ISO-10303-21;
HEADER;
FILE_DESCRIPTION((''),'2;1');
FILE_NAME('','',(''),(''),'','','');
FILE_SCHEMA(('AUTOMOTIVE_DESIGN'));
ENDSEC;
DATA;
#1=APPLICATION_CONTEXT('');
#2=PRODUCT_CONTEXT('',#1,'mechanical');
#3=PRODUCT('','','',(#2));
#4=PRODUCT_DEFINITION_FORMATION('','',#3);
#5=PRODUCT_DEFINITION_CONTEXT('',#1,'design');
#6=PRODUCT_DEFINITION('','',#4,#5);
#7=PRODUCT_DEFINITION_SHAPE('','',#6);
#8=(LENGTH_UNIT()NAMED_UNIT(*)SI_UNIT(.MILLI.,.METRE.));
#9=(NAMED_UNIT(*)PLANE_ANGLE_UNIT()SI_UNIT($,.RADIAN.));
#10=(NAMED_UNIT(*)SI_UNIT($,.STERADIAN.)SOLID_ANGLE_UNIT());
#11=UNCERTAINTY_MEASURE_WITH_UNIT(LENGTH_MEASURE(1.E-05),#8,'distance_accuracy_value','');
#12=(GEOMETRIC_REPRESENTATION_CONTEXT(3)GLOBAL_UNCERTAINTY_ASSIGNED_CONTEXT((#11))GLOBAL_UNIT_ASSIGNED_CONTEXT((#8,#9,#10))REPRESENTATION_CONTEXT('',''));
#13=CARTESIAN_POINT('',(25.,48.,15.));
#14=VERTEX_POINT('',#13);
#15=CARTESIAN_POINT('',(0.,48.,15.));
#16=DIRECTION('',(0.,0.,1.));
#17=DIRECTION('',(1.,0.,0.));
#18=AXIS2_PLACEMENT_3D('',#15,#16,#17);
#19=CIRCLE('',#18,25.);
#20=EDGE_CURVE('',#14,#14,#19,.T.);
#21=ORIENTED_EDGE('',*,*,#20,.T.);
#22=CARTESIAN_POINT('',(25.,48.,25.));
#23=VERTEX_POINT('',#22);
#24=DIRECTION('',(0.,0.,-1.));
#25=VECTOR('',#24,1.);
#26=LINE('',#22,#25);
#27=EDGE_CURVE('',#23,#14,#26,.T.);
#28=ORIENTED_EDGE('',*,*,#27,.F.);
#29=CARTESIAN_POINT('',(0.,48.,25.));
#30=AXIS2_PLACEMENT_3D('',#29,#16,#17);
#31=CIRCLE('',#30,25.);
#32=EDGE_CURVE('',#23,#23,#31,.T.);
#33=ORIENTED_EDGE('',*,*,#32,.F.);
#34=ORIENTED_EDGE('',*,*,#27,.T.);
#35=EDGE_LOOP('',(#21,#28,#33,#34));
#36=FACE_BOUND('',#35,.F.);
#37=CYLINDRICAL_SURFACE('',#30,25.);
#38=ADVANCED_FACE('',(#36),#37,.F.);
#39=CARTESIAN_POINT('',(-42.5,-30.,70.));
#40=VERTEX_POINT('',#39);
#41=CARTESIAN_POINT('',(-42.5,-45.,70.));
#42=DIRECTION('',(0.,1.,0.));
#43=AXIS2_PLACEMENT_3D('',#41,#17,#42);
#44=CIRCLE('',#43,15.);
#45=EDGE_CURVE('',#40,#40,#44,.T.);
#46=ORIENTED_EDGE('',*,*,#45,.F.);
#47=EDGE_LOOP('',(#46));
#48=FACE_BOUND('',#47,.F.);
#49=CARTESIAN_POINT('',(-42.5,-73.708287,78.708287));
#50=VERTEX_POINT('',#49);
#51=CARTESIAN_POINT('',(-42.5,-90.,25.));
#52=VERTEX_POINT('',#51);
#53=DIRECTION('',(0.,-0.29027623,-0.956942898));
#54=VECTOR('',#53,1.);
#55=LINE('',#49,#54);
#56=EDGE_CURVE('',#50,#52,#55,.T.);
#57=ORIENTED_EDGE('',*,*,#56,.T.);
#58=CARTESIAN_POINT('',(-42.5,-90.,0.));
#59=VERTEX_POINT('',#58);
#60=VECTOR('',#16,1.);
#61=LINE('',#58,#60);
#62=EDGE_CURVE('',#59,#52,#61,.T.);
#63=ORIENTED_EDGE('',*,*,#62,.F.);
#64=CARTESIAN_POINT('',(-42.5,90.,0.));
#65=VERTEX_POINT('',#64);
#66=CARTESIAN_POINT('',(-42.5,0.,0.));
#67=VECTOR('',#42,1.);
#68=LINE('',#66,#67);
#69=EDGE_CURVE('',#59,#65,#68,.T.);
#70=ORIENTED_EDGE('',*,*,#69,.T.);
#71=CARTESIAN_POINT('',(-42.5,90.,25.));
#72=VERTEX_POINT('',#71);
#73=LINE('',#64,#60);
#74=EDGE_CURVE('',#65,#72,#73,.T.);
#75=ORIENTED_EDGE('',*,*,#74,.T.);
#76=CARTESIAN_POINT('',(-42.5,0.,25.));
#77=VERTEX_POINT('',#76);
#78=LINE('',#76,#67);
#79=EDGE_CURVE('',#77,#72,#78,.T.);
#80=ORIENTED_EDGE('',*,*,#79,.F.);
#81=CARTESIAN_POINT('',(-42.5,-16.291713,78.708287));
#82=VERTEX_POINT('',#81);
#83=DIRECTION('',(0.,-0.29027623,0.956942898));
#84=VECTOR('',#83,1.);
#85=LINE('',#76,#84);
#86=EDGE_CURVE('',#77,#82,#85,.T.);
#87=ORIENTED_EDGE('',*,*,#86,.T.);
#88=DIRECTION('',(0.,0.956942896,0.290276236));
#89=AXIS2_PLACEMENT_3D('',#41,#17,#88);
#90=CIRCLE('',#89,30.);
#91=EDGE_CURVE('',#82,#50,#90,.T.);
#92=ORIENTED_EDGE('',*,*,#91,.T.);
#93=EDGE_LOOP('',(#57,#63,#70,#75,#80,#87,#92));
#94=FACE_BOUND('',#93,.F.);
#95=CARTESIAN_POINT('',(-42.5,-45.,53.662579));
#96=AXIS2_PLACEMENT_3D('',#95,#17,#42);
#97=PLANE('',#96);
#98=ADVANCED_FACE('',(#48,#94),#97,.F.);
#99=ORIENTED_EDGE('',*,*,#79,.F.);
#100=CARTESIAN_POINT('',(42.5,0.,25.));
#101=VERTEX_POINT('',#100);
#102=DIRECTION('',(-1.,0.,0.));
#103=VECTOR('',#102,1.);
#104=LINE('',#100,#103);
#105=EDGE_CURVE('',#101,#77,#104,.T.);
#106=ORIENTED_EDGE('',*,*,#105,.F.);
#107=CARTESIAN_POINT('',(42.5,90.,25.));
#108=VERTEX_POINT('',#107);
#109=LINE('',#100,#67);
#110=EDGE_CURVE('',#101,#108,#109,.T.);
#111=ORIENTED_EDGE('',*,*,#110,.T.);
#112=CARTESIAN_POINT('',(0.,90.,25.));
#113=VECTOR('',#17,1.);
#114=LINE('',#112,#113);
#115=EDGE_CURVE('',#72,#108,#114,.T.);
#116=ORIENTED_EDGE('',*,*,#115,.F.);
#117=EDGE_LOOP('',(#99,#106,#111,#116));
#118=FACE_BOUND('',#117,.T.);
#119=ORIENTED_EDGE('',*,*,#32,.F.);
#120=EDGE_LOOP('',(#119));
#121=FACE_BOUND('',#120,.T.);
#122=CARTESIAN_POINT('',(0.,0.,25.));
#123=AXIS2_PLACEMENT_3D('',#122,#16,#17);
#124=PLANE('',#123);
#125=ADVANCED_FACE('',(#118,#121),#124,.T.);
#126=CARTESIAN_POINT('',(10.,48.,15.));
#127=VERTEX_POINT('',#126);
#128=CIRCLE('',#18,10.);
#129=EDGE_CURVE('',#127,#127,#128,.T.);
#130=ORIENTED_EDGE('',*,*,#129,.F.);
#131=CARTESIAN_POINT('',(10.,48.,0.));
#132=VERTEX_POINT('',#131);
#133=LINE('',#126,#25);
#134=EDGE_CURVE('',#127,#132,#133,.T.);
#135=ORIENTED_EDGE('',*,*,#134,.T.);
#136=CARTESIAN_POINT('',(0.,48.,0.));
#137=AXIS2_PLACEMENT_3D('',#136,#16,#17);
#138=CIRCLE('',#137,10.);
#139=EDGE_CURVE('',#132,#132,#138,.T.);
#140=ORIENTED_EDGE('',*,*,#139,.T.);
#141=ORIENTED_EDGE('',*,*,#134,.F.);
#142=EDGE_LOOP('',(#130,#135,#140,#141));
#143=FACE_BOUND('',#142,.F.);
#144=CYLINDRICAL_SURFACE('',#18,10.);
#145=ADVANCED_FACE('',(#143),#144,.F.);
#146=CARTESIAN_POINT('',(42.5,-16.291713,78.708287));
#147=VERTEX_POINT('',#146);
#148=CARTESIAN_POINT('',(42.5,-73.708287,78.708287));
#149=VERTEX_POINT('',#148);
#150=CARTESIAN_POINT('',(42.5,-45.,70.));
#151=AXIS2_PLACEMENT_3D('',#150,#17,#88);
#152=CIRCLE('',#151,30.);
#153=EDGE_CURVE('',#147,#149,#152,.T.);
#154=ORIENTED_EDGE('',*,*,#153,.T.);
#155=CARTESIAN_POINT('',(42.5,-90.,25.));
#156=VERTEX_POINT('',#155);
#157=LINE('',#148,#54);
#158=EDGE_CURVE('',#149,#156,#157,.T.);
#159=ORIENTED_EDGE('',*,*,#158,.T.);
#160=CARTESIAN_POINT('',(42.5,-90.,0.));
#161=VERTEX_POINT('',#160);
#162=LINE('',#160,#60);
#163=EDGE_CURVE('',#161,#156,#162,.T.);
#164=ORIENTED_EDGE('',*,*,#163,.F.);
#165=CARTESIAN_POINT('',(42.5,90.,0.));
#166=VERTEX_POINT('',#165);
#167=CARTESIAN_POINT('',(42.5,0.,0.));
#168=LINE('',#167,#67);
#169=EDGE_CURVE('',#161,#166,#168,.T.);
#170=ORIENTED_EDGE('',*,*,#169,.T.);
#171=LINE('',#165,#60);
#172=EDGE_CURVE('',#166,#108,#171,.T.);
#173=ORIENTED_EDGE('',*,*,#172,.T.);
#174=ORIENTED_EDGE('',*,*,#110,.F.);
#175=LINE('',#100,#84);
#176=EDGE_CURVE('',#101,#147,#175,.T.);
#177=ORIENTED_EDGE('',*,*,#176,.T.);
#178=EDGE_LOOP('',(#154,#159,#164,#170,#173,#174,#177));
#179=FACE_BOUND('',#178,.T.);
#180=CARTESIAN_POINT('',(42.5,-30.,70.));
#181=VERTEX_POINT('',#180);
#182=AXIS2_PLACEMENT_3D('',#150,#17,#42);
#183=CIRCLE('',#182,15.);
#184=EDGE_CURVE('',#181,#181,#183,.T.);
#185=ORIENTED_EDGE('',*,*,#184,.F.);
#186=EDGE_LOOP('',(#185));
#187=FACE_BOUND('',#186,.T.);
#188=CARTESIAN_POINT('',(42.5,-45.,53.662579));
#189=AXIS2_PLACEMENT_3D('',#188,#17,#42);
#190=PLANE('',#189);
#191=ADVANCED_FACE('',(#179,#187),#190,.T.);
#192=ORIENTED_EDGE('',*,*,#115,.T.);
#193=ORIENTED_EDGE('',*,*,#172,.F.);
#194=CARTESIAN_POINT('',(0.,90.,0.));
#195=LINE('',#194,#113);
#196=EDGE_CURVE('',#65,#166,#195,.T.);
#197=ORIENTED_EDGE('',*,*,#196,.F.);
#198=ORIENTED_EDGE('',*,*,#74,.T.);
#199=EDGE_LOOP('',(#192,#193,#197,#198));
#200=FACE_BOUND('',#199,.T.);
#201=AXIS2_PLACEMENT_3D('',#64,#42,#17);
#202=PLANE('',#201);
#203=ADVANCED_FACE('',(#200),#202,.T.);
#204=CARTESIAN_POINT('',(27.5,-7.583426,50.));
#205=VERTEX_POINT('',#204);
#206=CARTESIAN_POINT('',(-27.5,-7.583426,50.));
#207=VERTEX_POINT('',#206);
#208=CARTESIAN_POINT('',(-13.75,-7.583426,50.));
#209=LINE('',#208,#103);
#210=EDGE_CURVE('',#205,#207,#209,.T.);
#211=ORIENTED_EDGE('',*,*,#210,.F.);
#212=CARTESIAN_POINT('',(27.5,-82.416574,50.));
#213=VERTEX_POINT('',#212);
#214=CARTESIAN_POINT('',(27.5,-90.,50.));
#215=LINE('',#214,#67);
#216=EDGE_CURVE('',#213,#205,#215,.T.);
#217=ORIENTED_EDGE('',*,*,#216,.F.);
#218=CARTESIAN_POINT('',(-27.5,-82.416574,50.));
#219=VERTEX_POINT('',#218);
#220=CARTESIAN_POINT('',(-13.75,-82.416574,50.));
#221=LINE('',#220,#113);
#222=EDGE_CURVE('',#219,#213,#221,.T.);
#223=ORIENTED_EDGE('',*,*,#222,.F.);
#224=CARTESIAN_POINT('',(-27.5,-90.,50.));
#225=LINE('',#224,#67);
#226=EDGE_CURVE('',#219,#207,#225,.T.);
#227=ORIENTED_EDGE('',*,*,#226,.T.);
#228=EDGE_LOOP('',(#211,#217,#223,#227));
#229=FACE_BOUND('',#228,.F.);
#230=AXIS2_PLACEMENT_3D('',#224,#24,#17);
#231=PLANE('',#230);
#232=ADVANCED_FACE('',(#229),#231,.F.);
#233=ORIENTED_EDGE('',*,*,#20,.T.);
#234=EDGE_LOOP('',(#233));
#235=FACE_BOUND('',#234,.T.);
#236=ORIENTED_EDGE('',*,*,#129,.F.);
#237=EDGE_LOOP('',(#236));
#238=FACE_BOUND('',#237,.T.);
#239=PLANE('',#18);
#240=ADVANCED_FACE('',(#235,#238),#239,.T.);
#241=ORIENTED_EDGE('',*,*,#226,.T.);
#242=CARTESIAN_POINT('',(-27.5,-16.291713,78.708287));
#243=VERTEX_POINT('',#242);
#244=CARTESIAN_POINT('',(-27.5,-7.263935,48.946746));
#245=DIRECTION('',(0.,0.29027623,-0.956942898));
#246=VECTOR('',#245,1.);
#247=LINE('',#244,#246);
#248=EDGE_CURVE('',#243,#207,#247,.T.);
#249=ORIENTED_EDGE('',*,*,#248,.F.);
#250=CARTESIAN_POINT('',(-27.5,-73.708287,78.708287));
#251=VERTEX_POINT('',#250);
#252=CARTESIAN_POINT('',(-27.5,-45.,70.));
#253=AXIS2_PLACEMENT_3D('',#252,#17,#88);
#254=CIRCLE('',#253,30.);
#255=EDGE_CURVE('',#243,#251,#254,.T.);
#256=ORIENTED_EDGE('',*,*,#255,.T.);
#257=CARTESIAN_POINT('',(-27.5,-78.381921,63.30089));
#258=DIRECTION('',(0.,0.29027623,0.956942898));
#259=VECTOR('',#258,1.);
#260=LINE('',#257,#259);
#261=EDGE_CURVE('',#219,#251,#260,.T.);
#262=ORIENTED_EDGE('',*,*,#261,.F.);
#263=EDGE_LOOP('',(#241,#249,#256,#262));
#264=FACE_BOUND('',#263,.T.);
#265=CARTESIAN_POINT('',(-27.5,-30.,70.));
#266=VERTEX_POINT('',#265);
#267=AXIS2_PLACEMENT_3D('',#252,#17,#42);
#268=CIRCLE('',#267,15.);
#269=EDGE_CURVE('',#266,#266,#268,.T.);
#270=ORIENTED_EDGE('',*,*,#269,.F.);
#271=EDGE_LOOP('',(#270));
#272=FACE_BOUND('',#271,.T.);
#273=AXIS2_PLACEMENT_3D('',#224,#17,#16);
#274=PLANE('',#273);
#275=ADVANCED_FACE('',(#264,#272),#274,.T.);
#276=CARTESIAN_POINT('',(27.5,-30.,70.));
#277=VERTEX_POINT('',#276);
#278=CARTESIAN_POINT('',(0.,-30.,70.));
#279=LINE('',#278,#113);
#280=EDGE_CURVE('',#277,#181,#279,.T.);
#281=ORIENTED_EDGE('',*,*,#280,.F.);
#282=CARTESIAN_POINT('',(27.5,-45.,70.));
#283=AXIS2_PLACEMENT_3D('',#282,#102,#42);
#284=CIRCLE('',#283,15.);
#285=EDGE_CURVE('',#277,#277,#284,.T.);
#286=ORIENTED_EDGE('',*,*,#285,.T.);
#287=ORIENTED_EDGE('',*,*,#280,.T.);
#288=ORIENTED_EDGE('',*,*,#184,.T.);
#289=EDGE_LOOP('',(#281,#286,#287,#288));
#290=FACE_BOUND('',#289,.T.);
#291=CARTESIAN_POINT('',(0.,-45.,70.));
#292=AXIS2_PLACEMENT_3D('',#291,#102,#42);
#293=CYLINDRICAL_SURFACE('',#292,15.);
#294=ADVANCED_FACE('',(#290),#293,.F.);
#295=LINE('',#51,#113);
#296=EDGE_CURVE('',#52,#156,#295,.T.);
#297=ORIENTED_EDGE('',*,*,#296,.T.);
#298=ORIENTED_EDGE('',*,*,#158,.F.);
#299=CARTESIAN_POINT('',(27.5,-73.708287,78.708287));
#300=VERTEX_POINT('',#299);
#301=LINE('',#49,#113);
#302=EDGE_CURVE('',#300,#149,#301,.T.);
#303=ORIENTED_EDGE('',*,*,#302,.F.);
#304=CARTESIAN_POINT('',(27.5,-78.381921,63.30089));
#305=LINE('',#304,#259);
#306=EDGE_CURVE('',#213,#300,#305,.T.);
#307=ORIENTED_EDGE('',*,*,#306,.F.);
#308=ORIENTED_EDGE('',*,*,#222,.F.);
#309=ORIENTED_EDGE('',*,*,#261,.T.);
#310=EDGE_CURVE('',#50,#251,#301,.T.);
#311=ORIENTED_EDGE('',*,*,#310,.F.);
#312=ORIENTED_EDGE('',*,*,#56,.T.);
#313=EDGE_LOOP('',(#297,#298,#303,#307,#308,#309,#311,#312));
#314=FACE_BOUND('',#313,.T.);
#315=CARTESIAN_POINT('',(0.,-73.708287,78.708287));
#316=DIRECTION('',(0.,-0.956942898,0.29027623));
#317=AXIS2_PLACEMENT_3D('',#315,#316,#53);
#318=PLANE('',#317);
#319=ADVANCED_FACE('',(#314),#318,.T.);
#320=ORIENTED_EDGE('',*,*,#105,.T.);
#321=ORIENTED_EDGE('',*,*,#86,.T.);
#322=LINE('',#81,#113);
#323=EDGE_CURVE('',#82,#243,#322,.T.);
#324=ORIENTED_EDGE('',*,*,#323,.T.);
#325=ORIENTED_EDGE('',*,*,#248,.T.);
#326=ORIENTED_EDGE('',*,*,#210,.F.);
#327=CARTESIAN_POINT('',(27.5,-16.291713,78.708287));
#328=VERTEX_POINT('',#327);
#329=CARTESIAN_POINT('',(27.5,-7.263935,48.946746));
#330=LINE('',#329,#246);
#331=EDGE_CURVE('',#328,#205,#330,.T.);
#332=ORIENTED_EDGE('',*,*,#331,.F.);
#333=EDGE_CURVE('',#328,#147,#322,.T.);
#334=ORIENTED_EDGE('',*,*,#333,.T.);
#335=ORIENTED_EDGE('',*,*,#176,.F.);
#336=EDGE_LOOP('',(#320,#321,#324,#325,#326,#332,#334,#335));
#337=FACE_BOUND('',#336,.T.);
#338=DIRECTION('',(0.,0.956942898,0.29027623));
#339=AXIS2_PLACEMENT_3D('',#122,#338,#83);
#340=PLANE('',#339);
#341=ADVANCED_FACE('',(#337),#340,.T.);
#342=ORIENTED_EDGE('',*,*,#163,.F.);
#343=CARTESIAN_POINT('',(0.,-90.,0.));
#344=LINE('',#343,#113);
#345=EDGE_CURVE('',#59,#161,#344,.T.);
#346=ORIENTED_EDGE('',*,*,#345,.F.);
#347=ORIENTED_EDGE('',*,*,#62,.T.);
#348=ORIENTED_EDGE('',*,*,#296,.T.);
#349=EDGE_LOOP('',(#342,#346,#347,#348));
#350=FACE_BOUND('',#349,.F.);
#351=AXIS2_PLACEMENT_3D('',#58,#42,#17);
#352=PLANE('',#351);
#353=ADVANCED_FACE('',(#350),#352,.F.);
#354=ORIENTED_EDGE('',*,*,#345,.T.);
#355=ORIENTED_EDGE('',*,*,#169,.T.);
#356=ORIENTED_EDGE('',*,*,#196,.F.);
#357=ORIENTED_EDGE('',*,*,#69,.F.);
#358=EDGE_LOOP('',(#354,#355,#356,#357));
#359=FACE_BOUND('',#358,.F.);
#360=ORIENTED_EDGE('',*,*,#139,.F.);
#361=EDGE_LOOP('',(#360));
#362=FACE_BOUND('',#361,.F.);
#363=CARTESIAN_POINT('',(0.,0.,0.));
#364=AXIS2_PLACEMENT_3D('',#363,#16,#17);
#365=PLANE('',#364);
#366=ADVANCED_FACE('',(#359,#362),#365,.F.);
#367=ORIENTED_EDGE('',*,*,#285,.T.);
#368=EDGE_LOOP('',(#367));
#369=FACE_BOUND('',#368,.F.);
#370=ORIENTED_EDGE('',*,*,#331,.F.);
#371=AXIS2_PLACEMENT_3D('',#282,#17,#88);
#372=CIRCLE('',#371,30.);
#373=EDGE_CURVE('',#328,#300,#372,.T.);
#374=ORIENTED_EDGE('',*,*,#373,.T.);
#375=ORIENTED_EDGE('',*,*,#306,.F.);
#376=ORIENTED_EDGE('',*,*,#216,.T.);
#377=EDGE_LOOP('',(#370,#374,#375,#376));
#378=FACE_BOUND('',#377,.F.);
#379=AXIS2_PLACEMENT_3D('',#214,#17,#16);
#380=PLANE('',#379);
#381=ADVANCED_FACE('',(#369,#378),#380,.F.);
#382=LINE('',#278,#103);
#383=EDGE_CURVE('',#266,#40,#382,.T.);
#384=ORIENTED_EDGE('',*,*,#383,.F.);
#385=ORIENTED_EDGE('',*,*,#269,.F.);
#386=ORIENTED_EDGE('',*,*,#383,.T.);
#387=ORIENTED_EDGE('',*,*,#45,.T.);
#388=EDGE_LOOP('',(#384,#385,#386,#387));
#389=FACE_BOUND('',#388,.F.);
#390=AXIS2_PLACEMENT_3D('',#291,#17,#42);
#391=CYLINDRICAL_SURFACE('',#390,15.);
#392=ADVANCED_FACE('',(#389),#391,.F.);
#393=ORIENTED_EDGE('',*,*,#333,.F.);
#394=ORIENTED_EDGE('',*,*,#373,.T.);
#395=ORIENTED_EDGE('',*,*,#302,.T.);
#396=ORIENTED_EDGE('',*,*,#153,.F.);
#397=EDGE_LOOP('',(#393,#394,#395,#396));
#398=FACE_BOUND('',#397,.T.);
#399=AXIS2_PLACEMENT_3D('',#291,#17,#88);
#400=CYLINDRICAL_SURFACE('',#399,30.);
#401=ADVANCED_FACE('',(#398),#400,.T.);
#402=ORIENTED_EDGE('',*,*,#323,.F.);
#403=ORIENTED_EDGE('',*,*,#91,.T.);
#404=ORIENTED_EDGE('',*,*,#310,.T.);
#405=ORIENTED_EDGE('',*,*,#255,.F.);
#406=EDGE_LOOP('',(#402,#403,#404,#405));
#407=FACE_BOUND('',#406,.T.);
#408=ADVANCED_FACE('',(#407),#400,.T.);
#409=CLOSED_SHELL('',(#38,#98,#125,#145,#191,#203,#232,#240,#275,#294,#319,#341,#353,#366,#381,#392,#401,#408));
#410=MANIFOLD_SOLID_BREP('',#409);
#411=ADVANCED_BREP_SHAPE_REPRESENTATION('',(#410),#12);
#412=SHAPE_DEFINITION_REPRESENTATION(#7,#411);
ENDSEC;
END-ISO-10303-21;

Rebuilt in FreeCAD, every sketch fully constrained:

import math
import FreeCAD as App
import Part
import Sketcher
from FreeCAD import Vector


def add_polygon(sketch, points):
    """Adds a closed chain of lines whose ends are joined by coincident constraints."""
    first, n = sketch.GeometryCount, len(points)
    for a, b in zip(points, points[1:] + points[:1]):
        sketch.addGeometry(Part.LineSegment(App.Vector(*a, 0), App.Vector(*b, 0)), False)
    for i in range(n):
        sketch.addConstraint(Sketcher.Constraint("Coincident", first + i, 2, first + (i + 1) % n, 1))

doc = App.newDocument("Part")
params = doc.addObject("Spreadsheet::Sheet", "Params")
for row, (alias, value) in enumerate([
    ("sketch1_width", "85 mm"),
    ("sketch1_height", "180 mm"),
    ("pad1_length", "25 mm"),
    ("sketch2_diameter", "30 mm"),
    ("sketch2_radius", "30 mm"),
    ("sketch2_width", "90 mm"),
    ("pad2_length", "42.5 mm"),
    ("pad2_length2", "42.5 mm"),
    ("sketch3_width", "55 mm"),
    ("sketch3_height", "65 mm"),
    ("sketch4_diameter", "50 mm"),
    ("pocket2_length", "10 mm"),
    ("sketch5_diameter", "20 mm"),
], start=1):
    params.set(f"A{row}", alias)
    params.set(f"B{row}", "=" + value)
    params.setAlias(f"B{row}", alias)

body = doc.addObject("PartDesign::Body", "Body")

# Sketch on XY plane
sketch1 = doc.addObject("Sketcher::SketchObject", "Sketch")
body.addObject(sketch1)
sketch1.AttachmentSupport = (doc.XY_Plane, [""])
sketch1.MapMode = "FlatFace"
add_polygon(sketch1, [(-42.5, 90), (-42.5, -90), (42.5, -90), (42.5, 90)])  # lines 0-3
sketch1.addConstraint([
    Sketcher.Constraint("Vertical", 0),
    Sketcher.Constraint("Horizontal", 1),
    Sketcher.Constraint("Vertical", 2),
    Sketcher.Constraint("Horizontal", 3),
    Sketcher.Constraint("Symmetric", 0, 2, 2, 2, -1, 1),
    Sketcher.Constraint("DistanceX", 1, 1, 1, 2, 85.0),
    Sketcher.Constraint("DistanceY", 0, 2, 0, 1, 180.0),
])
sketch1.setExpression("Constraints[9]", "Params.sketch1_width")
sketch1.setExpression("Constraints[10]", "Params.sketch1_height")
pad1 = doc.addObject("PartDesign::Pad", "Pad")
body.addObject(pad1)
pad1.Profile = sketch1
pad1.setExpression("Length", "Params.pad1_length")

# Sketch on YZ plane
sketch2 = doc.addObject("Sketcher::SketchObject", "Sketch001")
body.addObject(sketch2)
sketch2.AttachmentSupport = (doc.YZ_Plane, [""])
sketch2.MapMode = "FlatFace"
sketch2.addGeometry([
    Part.LineSegment(Vector(0, 25, 0), Vector(-16.291713, 78.708287, 0)),  # 0
    Part.ArcOfCircle(Part.Circle(Vector(-45, 70, 0), Vector(0, 0, 1), 30), math.radians(16.874495), math.radians(163.125505)),  # 1
    Part.LineSegment(Vector(-73.708287, 78.708287, 0), Vector(-90, 25, 0)),  # 2
    Part.LineSegment(Vector(-90, 25, 0), Vector(0, 25, 0)),  # 3
    Part.Circle(Vector(-45, 70, 0), Vector(0, 0, 1), 15),  # 4
], False)
sketch2.addConstraint([
    Sketcher.Constraint("Tangent", 0, 2, 1, 1),
    Sketcher.Constraint("Tangent", 1, 2, 2, 1),
    Sketcher.Constraint("Coincident", 2, 2, 3, 1),
    Sketcher.Constraint("Coincident", 3, 2, 0, 1),
    Sketcher.Constraint("Horizontal", 3),
    Sketcher.Constraint("Coincident", 4, 3, 1, 3),
    Sketcher.Constraint("PointOnObject", 3, 2, -2),
    Sketcher.Constraint("Horizontal", 0, 2, 1, 2),
    Sketcher.Constraint("Diameter", 4, 30.0),
    Sketcher.Constraint("Radius", 1, 30.0),
    Sketcher.Constraint("DistanceX", 3, 1, 3, 2, 90.0),
    Sketcher.Constraint("DistanceY", -1, 1, 1, 3, 70.0),
    Sketcher.Constraint("DistanceY", -1, 1, 2, 2, 25.0),
])
sketch2.setExpression("Constraints[8]", "Params.sketch2_diameter")
sketch2.setExpression("Constraints[9]", "Params.sketch2_radius")
sketch2.setExpression("Constraints[10]", "Params.sketch2_width")
pad2 = doc.addObject("PartDesign::Pad", "Pad001")
body.addObject(pad2)
pad2.Profile = sketch2
pad2.Type = "TwoLengths"
pad2.setExpression("Length", "Params.pad2_length")
pad2.setExpression("Length2", "Params.pad2_length2")

# Sketch on XZ plane
sketch3 = doc.addObject("Sketcher::SketchObject", "Sketch002")
body.addObject(sketch3)
sketch3.AttachmentSupport = (doc.XZ_Plane, [""])
sketch3.MapMode = "FlatFace"
sketch3.AttachmentOffset = App.Placement(Vector(0, 0, 90), App.Rotation())
add_polygon(sketch3, [(-27.5, 115), (-27.5, 50), (27.5, 50), (27.5, 115)])  # lines 0-3
sketch3.addConstraint([
    Sketcher.Constraint("Vertical", 0),
    Sketcher.Constraint("Horizontal", 1),
    Sketcher.Constraint("Vertical", 2),
    Sketcher.Constraint("Horizontal", 3),
    Sketcher.Constraint("DistanceX", 1, 1, 1, 2, 55.0),
    Sketcher.Constraint("DistanceY", 0, 2, 0, 1, 65.0),
    Sketcher.Constraint("DistanceY", -1, 1, 0, 2, 50.0),
    Sketcher.Constraint("DistanceX", 0, 2, -1, 1, 27.5),
])
sketch3.setExpression("Constraints[8]", "Params.sketch3_width")
sketch3.setExpression("Constraints[9]", "Params.sketch3_height")
pocket1 = doc.addObject("PartDesign::Pocket", "Pocket")
body.addObject(pocket1)
pocket1.Profile = sketch3
pocket1.Type = "ThroughAll"

# Sketch on XY plane
sketch4 = doc.addObject("Sketcher::SketchObject", "Sketch003")
body.addObject(sketch4)
sketch4.AttachmentSupport = (doc.XY_Plane, [""])
sketch4.MapMode = "FlatFace"
sketch4.AttachmentOffset = App.Placement(Vector(0, 0, 25), App.Rotation())
sketch4.addGeometry(Part.Circle(Vector(0, 48, 0), Vector(0, 0, 1), 25), False)
sketch4.addConstraint([
    Sketcher.Constraint("PointOnObject", 0, 3, -2),
    Sketcher.Constraint("Diameter", 0, 50.0),
    Sketcher.Constraint("DistanceY", -1, 1, 0, 3, 48.0),
])
sketch4.setExpression("Constraints[1]", "Params.sketch4_diameter")
pocket2 = doc.addObject("PartDesign::Pocket", "Pocket001")
body.addObject(pocket2)
pocket2.Profile = sketch4
pocket2.setExpression("Length", "Params.pocket2_length")

# Sketch on XY plane
sketch5 = doc.addObject("Sketcher::SketchObject", "Sketch004")
body.addObject(sketch5)
sketch5.AttachmentSupport = (doc.XY_Plane, [""])
sketch5.MapMode = "FlatFace"
sketch5.AttachmentOffset = App.Placement(Vector(0, 0, 15), App.Rotation())
sketch5.addGeometry(Part.Circle(Vector(0, 48, 0), Vector(0, 0, 1), 10), False)
sketch5.addConstraint([
    Sketcher.Constraint("PointOnObject", 0, 3, -2),
    Sketcher.Constraint("Diameter", 0, 20.0),
    Sketcher.Constraint("DistanceY", -1, 1, 0, 3, 48.0),
])
sketch5.setExpression("Constraints[1]", "Params.sketch5_diameter")
pocket3 = doc.addObject("PartDesign::Pocket", "Pocket002")
body.addObject(pocket3)
pocket3.Profile = sketch5
pocket3.Type = "ThroughAll"

doc.recompute()
